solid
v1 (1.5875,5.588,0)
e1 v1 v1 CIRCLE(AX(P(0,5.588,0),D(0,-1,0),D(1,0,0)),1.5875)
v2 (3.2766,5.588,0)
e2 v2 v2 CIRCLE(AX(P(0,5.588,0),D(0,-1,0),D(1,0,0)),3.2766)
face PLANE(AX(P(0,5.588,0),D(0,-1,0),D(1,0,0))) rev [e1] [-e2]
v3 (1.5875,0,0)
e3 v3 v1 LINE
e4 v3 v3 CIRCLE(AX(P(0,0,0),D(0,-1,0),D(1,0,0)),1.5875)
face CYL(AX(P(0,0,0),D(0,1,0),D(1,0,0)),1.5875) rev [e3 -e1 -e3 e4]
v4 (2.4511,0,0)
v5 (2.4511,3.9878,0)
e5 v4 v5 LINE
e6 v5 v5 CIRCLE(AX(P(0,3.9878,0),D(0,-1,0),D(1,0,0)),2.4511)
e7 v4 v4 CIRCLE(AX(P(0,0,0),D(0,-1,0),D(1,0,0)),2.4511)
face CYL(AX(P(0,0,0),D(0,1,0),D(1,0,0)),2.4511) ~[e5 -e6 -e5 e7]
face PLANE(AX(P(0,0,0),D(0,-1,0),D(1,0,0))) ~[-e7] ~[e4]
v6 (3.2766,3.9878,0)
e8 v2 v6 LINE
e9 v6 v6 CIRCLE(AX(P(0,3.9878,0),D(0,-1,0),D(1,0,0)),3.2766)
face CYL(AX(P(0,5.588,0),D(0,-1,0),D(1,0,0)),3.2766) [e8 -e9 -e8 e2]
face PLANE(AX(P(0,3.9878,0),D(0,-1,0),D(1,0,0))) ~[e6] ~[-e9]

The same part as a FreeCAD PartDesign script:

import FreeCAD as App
import Part
import Sketcher

V = App.Vector
Q = App.Units.Quantity


def add_polygon(sketch, points):
    """Adds a closed chain of lines whose ends are joined by coincident constraints."""
    first, n = sketch.GeometryCount, len(points)
    for a, b in zip(points, points[1:] + points[:1]):
        sketch.addGeometry(Part.LineSegment(App.Vector(*a, 0), App.Vector(*b, 0)), False)
    for i in range(n):
        sketch.addConstraint(Sketcher.Constraint("Coincident", first + i, 2, first + (i + 1) % n, 1))

doc = App.newDocument("Part")
body = doc.addObject("PartDesign::Body", "Body")

sketch1 = body.newObject("Sketcher::SketchObject", "Sketch")
sketch1.AttachmentSupport = (doc.getObject("XY_Plane"), [""])
sketch1.MapMode = "FlatFace"
add_polygon(sketch1, [(1.6, 0), (2.5, 0), (2.5, 4), (3.3, 4), (3.3, 5.6), (1.6, 5.6)])
sketch1.addConstraint([
    Sketcher.Constraint("Horizontal", 0),
    Sketcher.Constraint("Vertical", 1),
    Sketcher.Constraint("Horizontal", 2),
    Sketcher.Constraint("Vertical", 3),
    Sketcher.Constraint("Horizontal", 4),
    Sketcher.Constraint("Vertical", 5),
    Sketcher.Constraint("PointOnObject", 0, 2, -1),
    Sketcher.Constraint("DistanceY", 5, 2, 5, 1, Q("0.22 in")),
    Sketcher.Constraint("DistanceY", 1, 1, 1, 2, Q("0.157 in")),
    Sketcher.Constraint("DistanceX", -1, 1, 2, 2, Q("0.129 in")),
    Sketcher.Constraint("DistanceX", -1, 1, 4, 2, Q("0.0625 in")),
    Sketcher.Constraint("DistanceX", -1, 1, 0, 2, Q("0.0965 in")),
])
revolution = body.newObject("PartDesign::Revolution", "Revolution")
revolution.Profile = sketch1
revolution.ReferenceAxis = (sketch1, ["V_Axis"])
revolution.Angle = 360

doc.recompute()
